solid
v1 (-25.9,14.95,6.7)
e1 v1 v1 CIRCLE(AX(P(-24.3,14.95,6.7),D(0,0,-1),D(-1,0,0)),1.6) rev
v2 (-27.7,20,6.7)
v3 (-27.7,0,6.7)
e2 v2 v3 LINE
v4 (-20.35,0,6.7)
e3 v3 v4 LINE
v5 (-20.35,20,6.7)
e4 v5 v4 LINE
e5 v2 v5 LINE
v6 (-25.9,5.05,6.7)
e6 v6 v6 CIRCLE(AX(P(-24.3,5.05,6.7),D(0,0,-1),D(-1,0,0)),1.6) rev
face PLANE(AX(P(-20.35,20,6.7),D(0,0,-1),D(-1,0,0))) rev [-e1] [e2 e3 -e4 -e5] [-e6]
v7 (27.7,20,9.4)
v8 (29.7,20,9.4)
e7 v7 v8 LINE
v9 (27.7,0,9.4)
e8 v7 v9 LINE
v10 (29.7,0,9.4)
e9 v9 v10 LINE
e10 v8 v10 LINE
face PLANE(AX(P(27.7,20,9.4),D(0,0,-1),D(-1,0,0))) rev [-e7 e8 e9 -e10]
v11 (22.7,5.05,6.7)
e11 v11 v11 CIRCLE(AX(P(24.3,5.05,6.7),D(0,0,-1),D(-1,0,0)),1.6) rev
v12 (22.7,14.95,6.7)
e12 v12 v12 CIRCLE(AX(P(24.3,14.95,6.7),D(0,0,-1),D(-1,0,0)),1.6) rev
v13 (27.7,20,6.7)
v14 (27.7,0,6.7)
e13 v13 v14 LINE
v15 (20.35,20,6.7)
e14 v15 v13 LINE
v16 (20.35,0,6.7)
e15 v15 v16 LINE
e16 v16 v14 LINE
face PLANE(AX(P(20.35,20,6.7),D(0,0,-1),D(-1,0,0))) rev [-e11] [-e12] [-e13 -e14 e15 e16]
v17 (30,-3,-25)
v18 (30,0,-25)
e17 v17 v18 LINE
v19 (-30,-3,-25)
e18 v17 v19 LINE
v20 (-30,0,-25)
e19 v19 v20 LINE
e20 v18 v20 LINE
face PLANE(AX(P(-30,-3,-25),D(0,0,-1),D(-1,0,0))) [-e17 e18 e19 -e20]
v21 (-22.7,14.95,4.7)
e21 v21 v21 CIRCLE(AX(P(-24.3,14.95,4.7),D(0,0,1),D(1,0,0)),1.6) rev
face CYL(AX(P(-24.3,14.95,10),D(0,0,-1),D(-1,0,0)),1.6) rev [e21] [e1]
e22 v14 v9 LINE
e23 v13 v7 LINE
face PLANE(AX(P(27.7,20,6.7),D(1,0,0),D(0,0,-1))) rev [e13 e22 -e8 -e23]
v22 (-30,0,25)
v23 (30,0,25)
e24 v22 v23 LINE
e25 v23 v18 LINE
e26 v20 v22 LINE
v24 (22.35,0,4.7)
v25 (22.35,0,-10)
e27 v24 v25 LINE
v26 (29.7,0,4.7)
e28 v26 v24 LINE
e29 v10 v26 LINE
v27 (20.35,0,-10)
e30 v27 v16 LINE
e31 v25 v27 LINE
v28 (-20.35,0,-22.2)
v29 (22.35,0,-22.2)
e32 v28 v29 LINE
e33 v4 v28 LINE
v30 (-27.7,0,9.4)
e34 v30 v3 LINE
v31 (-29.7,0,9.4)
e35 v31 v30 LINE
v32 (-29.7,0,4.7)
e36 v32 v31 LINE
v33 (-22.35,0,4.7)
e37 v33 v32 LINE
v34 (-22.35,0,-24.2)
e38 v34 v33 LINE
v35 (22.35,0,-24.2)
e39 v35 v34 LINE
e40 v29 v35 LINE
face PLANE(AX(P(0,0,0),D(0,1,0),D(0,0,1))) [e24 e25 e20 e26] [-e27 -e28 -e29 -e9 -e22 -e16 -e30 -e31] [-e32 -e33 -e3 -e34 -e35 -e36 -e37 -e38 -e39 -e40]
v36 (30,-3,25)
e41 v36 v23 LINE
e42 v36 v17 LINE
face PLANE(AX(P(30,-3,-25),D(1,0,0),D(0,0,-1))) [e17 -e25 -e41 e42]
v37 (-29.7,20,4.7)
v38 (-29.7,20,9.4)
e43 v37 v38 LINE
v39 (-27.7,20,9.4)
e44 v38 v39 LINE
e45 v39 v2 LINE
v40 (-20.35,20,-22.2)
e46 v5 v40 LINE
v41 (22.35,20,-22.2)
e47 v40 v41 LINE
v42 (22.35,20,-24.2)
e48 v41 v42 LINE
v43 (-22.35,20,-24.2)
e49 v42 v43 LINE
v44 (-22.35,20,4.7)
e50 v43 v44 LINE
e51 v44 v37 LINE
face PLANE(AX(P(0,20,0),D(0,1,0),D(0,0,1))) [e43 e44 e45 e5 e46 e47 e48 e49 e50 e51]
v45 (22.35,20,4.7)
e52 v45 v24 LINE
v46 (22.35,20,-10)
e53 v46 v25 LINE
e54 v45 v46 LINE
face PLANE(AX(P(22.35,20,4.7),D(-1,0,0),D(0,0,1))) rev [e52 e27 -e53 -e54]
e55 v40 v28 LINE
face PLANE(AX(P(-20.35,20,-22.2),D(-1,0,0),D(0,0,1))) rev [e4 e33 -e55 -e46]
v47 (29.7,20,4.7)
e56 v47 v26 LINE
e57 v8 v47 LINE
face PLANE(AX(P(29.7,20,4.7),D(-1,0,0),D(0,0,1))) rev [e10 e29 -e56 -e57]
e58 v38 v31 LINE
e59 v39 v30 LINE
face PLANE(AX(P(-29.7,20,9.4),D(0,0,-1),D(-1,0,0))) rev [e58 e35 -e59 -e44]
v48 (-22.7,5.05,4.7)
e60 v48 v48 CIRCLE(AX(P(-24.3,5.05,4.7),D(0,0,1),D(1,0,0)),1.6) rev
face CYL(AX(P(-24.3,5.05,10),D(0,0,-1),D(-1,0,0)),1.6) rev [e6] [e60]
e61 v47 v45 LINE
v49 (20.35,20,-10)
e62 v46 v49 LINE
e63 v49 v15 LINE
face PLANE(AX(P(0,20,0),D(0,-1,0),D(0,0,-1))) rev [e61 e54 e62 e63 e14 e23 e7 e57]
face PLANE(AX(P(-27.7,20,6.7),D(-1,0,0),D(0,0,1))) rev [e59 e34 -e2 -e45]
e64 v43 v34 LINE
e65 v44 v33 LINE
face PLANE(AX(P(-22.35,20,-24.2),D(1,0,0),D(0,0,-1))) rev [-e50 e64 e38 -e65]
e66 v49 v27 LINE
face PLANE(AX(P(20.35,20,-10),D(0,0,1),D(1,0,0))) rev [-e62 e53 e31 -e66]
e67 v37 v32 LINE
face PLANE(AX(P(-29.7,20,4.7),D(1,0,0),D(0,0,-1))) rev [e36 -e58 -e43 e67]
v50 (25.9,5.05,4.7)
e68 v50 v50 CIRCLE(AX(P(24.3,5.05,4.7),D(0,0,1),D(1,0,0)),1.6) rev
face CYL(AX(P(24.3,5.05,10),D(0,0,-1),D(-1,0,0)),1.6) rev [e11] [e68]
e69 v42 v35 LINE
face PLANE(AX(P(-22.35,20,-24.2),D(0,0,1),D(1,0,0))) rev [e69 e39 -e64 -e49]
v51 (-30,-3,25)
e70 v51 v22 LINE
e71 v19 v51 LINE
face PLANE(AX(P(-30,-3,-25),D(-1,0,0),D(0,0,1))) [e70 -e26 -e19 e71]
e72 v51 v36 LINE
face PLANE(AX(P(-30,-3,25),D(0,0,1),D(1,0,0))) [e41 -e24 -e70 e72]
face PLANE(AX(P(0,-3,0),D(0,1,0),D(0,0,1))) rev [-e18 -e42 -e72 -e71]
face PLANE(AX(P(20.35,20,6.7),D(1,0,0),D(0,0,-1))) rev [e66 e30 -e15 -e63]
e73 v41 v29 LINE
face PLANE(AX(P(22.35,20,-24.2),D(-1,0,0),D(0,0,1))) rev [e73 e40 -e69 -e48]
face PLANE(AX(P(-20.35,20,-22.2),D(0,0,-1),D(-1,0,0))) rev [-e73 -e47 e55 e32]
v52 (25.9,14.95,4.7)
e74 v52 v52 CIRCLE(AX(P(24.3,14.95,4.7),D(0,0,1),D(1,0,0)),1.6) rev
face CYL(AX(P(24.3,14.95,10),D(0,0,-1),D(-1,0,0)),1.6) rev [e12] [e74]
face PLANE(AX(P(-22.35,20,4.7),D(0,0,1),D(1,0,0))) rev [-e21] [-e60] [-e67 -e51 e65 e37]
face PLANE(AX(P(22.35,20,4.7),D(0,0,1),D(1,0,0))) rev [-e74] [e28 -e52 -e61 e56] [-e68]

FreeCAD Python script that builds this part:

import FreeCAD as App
import Part
import Sketcher
from FreeCAD import Vector


def add_polygon(sketch, points):
    """Adds a closed chain of lines whose ends are joined by coincident constraints."""
    first, n = sketch.GeometryCount, len(points)
    for a, b in zip(points, points[1:] + points[:1]):
        sketch.addGeometry(Part.LineSegment(App.Vector(*a, 0), App.Vector(*b, 0)), False)
    for i in range(n):
        sketch.addConstraint(Sketcher.Constraint("Coincident", first + i, 2, first + (i + 1) % n, 1))

doc = App.newDocument("Part")
body = doc.addObject("PartDesign::Body", "Body")

# Sketch on XZ plane
sketch1 = doc.addObject("Sketcher::SketchObject", "Sketch")
body.addObject(sketch1)
sketch1.AttachmentSupport = (doc.XZ_Plane, [""])
sketch1.MapMode = "FlatFace"
add_polygon(sketch1, [(-20.35, -22.2), (22.35, -22.2), (22.35, -24.2), (-22.35, -24.2), (-22.35, 4.7), (-29.7, 4.7), (-29.7, 9.4), (-27.7, 9.4), (-27.7, 6.7), (-20.35, 6.7)])  # lines 0-9
sketch1.addConstraint([
    Sketcher.Constraint("Horizontal", 0),
    Sketcher.Constraint("Vertical", 1),
    Sketcher.Constraint("Horizontal", 2),
    Sketcher.Constraint("Vertical", 3),
    Sketcher.Constraint("Horizontal", 4),
    Sketcher.Constraint("Vertical", 5),
    Sketcher.Constraint("Horizontal", 6),
    Sketcher.Constraint("Vertical", 7),
    Sketcher.Constraint("Horizontal", 8),
    Sketcher.Constraint("Vertical", 9),
    Sketcher.Constraint("Equal", 4, 8),
    Sketcher.Constraint("Equal", 6, 1),
    Sketcher.Constraint("Equal", 3, 9),
    Sketcher.Constraint("DistanceX", 6, 1, 6, 2, 2.0),
    Sketcher.Constraint("DistanceX", 0, 1, 0, 2, 42.7),
    Sketcher.Constraint("DistanceY", 3, 1, 3, 2, 28.9),
    Sketcher.Constraint("DistanceY", 5, 1, 5, 2, 4.7),
    Sketcher.Constraint("DistanceX", 4, 2, 4, 1, 7.35),
    Sketcher.Constraint("DistanceY", 0, 2, -1, 1, 22.2),
    Sketcher.Constraint("DistanceX", 4, 2, -1, 1, 29.7),
])
pad1 = doc.addObject("PartDesign::Pad", "Pad")
body.addObject(pad1)
pad1.Profile = sketch1
pad1.Length = 20
pad1.Reversed = True
body2 = doc.addObject("PartDesign::Body", "Body001")

# Sketch on XZ plane
sketch2 = doc.addObject("Sketcher::SketchObject", "Sketch001")
body2.addObject(sketch2)
sketch2.AttachmentSupport = (doc.getObject("XZ_Plane001"), [""])
sketch2.MapMode = "FlatFace"
add_polygon(sketch2, [(20.35, -10), (20.35, 6.7), (27.7, 6.7), (27.7, 9.4), (29.7, 9.4), (29.7, 4.7), (22.35, 4.7), (22.35, -10)])  # lines 0-7
sketch2.addConstraint([
    Sketcher.Constraint("Vertical", 0),
    Sketcher.Constraint("Horizontal", 1),
    Sketcher.Constraint("Vertical", 2),
    Sketcher.Constraint("Horizontal", 3),
    Sketcher.Constraint("Vertical", 4),
    Sketcher.Constraint("Horizontal", 5),
    Sketcher.Constraint("Vertical", 6),
    Sketcher.Constraint("Horizontal", 7),
    Sketcher.Constraint("Equal", 1, 5),
    Sketcher.Constraint("DistanceX", 3, 1, 3, 2, 2.0),
    Sketcher.Constraint("DistanceY", 0, 1, 0, 2, 16.7),
    Sketcher.Constraint("DistanceY", 2, 1, 2, 2, 2.7),
    Sketcher.Constraint("DistanceY", 4, 2, 4, 1, 4.7),
    Sketcher.Constraint("DistanceY", 6, 2, -1, 1, 10.0),
    Sketcher.Constraint("DistanceX", 1, 1, 1, 2, 7.35),
    Sketcher.Constraint("DistanceX", -1, 1, 1, 2, 27.7),
])
pad2 = doc.addObject("PartDesign::Pad", "Pad001")
body2.addObject(pad2)
pad2.Profile = sketch2
pad2.Length = 20
pad2.Reversed = True
body.AllowCompound = True
doc.recompute()

boolean = doc.addObject("PartDesign::Boolean", "Boolean")
body.addObject(boolean)
boolean.Type = "Fuse"
boolean.addObjects([body2])

# Sketch on XZ plane
sketch3 = doc.addObject("Sketcher::SketchObject", "Sketch002")
body.addObject(sketch3)
sketch3.AttachmentSupport = (doc.XZ_Plane, [""])
sketch3.MapMode = "FlatFace"
add_polygon(sketch3, [(-30, -25), (-30, 25), (30, 25), (30, -25)])  # lines 0-3
sketch3.addConstraint([
    Sketcher.Constraint("Vertical", 0),
    Sketcher.Constraint("Horizontal", 1),
    Sketcher.Constraint("Vertical", 2),
    Sketcher.Constraint("Horizontal", 3),
    Sketcher.Constraint("Symmetric", 0, 2, 2, 2, -1, 1),
    Sketcher.Constraint("DistanceX", 1, 1, 1, 2, 60.0),
    Sketcher.Constraint("DistanceY", 0, 1, 0, 2, 50.0),
])
pad3 = doc.addObject("PartDesign::Pad", "Pad002")
body.addObject(pad3)
pad3.Profile = sketch3
pad3.Length = 3

# Sketch on XY plane
sketch4 = doc.addObject("Sketcher::SketchObject", "Sketch003")
body.addObject(sketch4)
sketch4.AttachmentSupport = (doc.XY_Plane, [""])
sketch4.MapMode = "FlatFace"
sketch4.addGeometry([
    Part.Circle(Vector(-24.3, 14.95, 0), Vector(0, 0, 1), 1.6),
    Part.Circle(Vector(24.3, 14.95, 0), Vector(0, 0, 1), 1.6),
    Part.Circle(Vector(24.3, 5.05, 0), Vector(0, 0, 1), 1.6),
    Part.Circle(Vector(-24.3, 5.05, 0), Vector(0, 0, 1), 1.6),
], False)
sketch4.addConstraint([
    Sketcher.Constraint("Equal", 0, 1),
    Sketcher.Constraint("Equal", 1, 2),
    Sketcher.Constraint("Equal", 2, 3),
    Sketcher.Constraint("Symmetric", 0, 3, 1, 3, -2),
    Sketcher.Constraint("Symmetric", 2, 3, 3, 3, -2),
    Sketcher.Constraint("Vertical", 1, 3, 2, 3),
    Sketcher.Constraint("Diameter", 0, 3.2),
    Sketcher.Constraint("DistanceX", 0, 3, -1, 1, 24.3),
    Sketcher.Constraint("DistanceY", 2, 3, 1, 3, 9.9),
    Sketcher.Constraint("DistanceY", -1, 1, 0, 3, 14.95),
])
pocket1 = doc.addObject("PartDesign::Pocket", "Pocket")
body.addObject(pocket1)
pocket1.Profile = sketch4
pocket1.Length = 10
pocket1.Reversed = True

doc.recompute()
